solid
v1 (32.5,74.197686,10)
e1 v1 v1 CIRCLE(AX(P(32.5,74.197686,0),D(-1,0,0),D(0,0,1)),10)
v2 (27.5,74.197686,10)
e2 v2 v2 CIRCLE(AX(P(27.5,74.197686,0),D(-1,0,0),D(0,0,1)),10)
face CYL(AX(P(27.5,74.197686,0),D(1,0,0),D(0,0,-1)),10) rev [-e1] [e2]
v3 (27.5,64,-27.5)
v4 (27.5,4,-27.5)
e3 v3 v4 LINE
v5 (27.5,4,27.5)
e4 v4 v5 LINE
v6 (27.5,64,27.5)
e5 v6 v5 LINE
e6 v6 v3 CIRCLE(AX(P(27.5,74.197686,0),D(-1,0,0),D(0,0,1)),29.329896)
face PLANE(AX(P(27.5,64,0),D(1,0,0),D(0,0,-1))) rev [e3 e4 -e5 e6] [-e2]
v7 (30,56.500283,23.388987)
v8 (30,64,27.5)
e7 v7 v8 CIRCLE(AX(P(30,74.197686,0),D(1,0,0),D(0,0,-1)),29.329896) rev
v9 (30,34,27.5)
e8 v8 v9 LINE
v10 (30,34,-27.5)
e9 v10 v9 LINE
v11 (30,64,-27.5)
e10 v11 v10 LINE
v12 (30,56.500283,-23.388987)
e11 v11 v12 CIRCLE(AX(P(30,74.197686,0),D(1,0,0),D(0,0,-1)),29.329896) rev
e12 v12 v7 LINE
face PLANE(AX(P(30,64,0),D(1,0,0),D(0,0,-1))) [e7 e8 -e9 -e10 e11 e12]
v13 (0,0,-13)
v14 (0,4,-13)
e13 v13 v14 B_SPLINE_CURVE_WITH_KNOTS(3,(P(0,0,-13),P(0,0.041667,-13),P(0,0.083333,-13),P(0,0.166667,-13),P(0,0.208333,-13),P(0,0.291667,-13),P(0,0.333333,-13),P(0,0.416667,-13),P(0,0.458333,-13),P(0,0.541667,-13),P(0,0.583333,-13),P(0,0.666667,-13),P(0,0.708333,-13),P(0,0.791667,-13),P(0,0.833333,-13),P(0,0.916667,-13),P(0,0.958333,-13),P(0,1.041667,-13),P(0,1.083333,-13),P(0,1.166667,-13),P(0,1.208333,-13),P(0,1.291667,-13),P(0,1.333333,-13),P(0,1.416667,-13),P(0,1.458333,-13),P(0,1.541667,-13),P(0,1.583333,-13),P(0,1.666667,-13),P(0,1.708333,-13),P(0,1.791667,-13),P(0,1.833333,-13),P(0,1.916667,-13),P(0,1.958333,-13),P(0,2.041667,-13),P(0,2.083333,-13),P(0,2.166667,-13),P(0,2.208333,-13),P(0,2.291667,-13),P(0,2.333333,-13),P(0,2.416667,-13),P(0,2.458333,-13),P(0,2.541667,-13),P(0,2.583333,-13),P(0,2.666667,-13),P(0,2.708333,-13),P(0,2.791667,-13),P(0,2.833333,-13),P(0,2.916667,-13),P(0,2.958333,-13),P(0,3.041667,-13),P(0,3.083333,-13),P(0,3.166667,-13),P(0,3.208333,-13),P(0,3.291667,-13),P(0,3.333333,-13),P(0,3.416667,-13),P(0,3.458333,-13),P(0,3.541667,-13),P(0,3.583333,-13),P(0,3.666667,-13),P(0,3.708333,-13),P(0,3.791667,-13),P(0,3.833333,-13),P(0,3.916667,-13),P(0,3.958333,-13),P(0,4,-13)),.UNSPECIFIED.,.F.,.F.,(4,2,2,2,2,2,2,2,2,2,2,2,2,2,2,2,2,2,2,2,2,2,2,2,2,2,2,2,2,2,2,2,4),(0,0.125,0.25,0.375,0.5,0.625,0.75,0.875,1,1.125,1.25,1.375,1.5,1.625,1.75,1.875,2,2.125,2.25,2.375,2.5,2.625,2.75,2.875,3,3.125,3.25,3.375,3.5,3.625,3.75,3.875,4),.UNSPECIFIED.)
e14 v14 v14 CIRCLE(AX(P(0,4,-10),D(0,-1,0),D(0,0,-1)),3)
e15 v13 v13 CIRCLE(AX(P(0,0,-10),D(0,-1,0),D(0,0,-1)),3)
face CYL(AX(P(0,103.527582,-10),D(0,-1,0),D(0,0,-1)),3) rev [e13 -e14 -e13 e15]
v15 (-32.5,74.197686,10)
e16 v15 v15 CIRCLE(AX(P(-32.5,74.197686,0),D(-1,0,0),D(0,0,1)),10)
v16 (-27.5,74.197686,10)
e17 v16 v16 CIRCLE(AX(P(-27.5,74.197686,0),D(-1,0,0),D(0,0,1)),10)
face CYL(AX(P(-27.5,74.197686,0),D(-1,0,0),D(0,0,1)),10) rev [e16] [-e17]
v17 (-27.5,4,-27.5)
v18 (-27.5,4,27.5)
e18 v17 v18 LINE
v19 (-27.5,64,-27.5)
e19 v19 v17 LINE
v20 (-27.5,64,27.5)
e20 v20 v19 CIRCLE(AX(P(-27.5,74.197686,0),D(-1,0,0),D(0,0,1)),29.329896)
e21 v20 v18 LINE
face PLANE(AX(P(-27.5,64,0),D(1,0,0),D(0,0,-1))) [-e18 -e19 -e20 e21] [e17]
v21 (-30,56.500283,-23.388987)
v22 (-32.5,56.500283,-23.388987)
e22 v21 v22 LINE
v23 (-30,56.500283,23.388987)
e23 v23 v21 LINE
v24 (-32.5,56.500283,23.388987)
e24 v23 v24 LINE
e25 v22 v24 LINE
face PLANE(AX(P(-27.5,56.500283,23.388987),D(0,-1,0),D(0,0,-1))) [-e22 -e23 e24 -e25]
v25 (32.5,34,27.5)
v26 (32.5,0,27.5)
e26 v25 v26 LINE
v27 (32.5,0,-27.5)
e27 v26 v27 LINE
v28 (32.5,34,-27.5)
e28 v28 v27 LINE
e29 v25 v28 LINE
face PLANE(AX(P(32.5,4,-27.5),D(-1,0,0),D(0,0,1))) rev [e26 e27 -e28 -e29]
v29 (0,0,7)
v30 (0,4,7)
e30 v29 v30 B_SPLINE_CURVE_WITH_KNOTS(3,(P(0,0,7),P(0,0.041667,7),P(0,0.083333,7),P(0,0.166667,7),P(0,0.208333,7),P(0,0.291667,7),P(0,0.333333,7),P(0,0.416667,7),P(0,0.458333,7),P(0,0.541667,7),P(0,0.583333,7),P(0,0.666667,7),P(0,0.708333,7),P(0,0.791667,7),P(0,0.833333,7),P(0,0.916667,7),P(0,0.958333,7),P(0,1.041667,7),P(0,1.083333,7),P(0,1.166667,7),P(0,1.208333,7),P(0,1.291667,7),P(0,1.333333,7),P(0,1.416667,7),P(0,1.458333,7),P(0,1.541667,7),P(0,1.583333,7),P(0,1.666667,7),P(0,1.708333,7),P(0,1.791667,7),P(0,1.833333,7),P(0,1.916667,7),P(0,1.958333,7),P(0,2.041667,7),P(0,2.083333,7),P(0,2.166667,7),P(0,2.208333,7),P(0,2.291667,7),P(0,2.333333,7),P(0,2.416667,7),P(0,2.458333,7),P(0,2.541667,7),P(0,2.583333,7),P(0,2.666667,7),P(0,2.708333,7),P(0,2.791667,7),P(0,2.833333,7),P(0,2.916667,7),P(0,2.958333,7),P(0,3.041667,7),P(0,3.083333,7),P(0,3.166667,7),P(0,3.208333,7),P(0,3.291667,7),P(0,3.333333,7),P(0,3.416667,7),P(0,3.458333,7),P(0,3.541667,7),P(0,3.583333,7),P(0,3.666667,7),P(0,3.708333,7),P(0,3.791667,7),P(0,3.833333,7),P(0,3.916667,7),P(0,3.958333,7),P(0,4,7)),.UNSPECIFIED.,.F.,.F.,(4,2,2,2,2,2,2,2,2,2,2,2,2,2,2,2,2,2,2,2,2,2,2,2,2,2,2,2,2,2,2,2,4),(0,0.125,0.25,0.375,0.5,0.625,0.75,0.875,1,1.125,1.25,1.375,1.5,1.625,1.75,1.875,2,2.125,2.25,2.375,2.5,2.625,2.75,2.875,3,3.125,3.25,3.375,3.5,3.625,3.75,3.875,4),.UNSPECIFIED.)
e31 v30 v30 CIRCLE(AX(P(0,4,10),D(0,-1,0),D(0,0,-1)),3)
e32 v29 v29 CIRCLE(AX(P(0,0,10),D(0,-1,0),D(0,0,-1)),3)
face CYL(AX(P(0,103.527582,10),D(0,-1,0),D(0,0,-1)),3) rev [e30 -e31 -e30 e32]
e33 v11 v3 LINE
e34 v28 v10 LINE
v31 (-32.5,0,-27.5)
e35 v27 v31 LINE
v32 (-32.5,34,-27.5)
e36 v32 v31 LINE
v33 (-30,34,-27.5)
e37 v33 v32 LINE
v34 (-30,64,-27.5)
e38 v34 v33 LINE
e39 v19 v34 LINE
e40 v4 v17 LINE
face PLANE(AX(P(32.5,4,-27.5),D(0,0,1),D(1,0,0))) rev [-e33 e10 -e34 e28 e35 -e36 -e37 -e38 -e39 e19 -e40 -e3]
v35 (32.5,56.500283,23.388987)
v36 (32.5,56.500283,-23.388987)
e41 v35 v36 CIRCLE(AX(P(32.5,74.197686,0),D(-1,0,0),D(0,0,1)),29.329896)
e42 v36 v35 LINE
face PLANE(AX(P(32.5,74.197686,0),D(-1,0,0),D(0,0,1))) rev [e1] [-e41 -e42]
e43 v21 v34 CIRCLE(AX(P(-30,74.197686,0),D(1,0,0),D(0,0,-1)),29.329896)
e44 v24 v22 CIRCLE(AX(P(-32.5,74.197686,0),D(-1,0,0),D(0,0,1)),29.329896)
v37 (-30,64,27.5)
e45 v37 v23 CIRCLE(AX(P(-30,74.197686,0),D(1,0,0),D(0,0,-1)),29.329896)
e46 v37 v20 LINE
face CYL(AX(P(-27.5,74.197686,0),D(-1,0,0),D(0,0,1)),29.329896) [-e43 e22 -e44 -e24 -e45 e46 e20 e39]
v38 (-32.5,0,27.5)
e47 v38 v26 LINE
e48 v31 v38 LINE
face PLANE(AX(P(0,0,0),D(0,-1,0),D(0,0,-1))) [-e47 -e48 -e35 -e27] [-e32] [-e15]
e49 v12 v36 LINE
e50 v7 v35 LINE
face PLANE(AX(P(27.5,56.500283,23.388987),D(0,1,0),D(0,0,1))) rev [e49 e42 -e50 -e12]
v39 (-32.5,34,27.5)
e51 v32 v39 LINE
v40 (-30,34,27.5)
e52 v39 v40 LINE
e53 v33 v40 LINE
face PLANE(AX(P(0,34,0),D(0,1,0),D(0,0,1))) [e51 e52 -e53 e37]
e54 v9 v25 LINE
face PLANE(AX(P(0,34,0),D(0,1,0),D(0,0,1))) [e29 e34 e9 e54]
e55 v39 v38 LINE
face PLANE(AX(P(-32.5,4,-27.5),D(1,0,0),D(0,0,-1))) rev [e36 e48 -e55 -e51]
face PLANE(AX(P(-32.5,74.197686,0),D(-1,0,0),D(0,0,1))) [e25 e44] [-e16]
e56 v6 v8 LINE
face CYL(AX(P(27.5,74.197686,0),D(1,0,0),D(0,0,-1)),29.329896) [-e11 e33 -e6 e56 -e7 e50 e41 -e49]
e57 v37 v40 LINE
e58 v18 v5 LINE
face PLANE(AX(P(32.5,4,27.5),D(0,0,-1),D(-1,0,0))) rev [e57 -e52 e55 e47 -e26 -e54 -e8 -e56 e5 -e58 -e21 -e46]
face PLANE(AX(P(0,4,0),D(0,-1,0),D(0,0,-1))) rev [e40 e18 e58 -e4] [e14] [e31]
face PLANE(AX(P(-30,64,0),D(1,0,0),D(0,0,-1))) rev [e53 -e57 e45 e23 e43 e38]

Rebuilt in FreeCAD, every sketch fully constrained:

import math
import FreeCAD as App
import Part
import Sketcher
from FreeCAD import Vector

doc = App.newDocument("Part")
body = doc.addObject("PartDesign::Body", "Body")

sketch1 = doc.addObject("Sketcher::SketchObject", "Sketch")
body.addObject(sketch1)
sketch1.AttachmentSupport = (doc.XZ_Plane, [""])
sketch1.MapMode = "FlatFace"
sketch1.addGeometry([
    Part.LineSegment(Vector(-32, -28, 0), Vector(-32, 28, 0)),
    Part.LineSegment(Vector(-32, 28, 0), Vector(32, 28, 0)),
    Part.LineSegment(Vector(32, 28, 0), Vector(32, -28, 0)),
    Part.LineSegment(Vector(32, -28, 0), Vector(-32, -28, 0)),
], False)
sketch1.addConstraint([
    Sketcher.Constraint("Coincident", 0, 2, 1, 1),
    Sketcher.Constraint("Coincident", 1, 2, 2, 1),
    Sketcher.Constraint("Coincident", 2, 2, 3, 1),
    Sketcher.Constraint("Coincident", 3, 2, 0, 1),
    Sketcher.Constraint("Vertical", 0),
    Sketcher.Constraint("Horizontal", 1),
    Sketcher.Constraint("Vertical", 2),
    Sketcher.Constraint("Horizontal", 3),
    Sketcher.Constraint("Symmetric", 0, 2, 2, 2, -1, 1),
    Sketcher.Constraint("DistanceX", 1, 1, 1, 2, 65.0),
    Sketcher.Constraint("DistanceY", 0, 1, 0, 2, 55.0),
])
pad1 = doc.addObject("PartDesign::Pad", "Pad")
body.addObject(pad1)
pad1.Profile = sketch1
pad1.Length = 4
pad1.Reversed = True

sketch2 = doc.addObject("Sketcher::SketchObject", "Sketch001")
body.addObject(sketch2)
sketch2.AttachmentSupport = (doc.XZ_Plane, [""])
sketch2.MapMode = "FlatFace"
sketch2.AttachmentOffset = App.Placement(Vector(0, 0, -4), App.Rotation())
sketch2.addGeometry([
    Part.LineSegment(Vector(-30, -27.5, 0), Vector(-30, 27.5, 0)),
    Part.LineSegment(Vector(-30, 27.5, 0), Vector(-27.5, 27.5, 0)),
    Part.LineSegment(Vector(-27.5, 27.5, 0), Vector(-27.5, -27.5, 0)),
    Part.LineSegment(Vector(-27.5, -27.5, 0), Vector(-30, -27.5, 0)),
    Part.LineSegment(Vector(27.5, -27.5, 0), Vector(27.5, 27.5, 0)),
    Part.LineSegment(Vector(27.5, 27.5, 0), Vector(30, 27.5, 0)),
    Part.LineSegment(Vector(30, 27.5, 0), Vector(30, -27.5, 0)),
    Part.LineSegment(Vector(30, -27.5, 0), Vector(27.5, -27.5, 0)),
], False)
sketch2.addConstraint([
    Sketcher.Constraint("Coincident", 0, 2, 1, 1),
    Sketcher.Constraint("Coincident", 1, 2, 2, 1),
    Sketcher.Constraint("Coincident", 2, 2, 3, 1),
    Sketcher.Constraint("Coincident", 3, 2, 0, 1),
    Sketcher.Constraint("Coincident", 4, 2, 5, 1),
    Sketcher.Constraint("Coincident", 5, 2, 6, 1),
    Sketcher.Constraint("Coincident", 6, 2, 7, 1),
    Sketcher.Constraint("Coincident", 7, 2, 4, 1),
    Sketcher.Constraint("Vertical", 0),
    Sketcher.Constraint("Horizontal", 1),
    Sketcher.Constraint("Vertical", 2),
    Sketcher.Constraint("Horizontal", 3),
    Sketcher.Constraint("Vertical", 4),
    Sketcher.Constraint("Horizontal", 5),
    Sketcher.Constraint("Vertical", 6),
    Sketcher.Constraint("Horizontal", 7),
    Sketcher.Constraint("Symmetric", 2, 2, 4, 2, -1, 1),
    Sketcher.Constraint("Symmetric", 0, 2, 6, 2, -1, 1),
    Sketcher.Constraint("Horizontal", 1, 2, 4, 2),
    Sketcher.Constraint("DistanceY", 0, 1, 0, 2, 55.0),
    Sketcher.Constraint("DistanceX", 1, 1, 1, 2, 2.5),
    Sketcher.Constraint("DistanceX", 0, 2, -1, 1, 30.0),
])
pad2 = doc.addObject("PartDesign::Pad", "Pad001")
body.addObject(pad2)
pad2.Profile = sketch2
pad2.Length = 60
pad2.Reversed = True

sketch3 = doc.addObject("Sketcher::SketchObject", "Sketch002")
body.addObject(sketch3)
sketch3.AttachmentSupport = (doc.XZ_Plane, [""])
sketch3.MapMode = "FlatFace"
sketch3.AttachmentOffset = App.Placement(Vector(0, 0, -4), App.Rotation())
sketch3.addGeometry([
    Part.LineSegment(Vector(-32.5, -27.5, 0), Vector(-32.5, 27.5, 0)),
    Part.LineSegment(Vector(-32.5, 27.5, 0), Vector(-30, 27.5, 0)),
    Part.LineSegment(Vector(-30, 27.5, 0), Vector(-30, -27.5, 0)),
    Part.LineSegment(Vector(-30, -27.5, 0), Vector(-32.5, -27.5, 0)),
    Part.LineSegment(Vector(30, -27.5, 0), Vector(30, 27.5, 0)),
    Part.LineSegment(Vector(30, 27.5, 0), Vector(32.5, 27.5, 0)),
    Part.LineSegment(Vector(32.5, 27.5, 0), Vector(32.5, -27.5, 0)),
    Part.LineSegment(Vector(32.5, -27.5, 0), Vector(30, -27.5, 0)),
], False)
sketch3.addConstraint([
    Sketcher.Constraint("Coincident", 0, 2, 1, 1),
    Sketcher.Constraint("Coincident", 1, 2, 2, 1),
    Sketcher.Constraint("Coincident", 2, 2, 3, 1),
    Sketcher.Constraint("Coincident", 3, 2, 0, 1),
    Sketcher.Constraint("Coincident", 4, 2, 5, 1),
    Sketcher.Constraint("Coincident", 5, 2, 6, 1),
    Sketcher.Constraint("Coincident", 6, 2, 7, 1),
    Sketcher.Constraint("Coincident", 7, 2, 4, 1),
    Sketcher.Constraint("Vertical", 0),
    Sketcher.Constraint("Horizontal", 1),
    Sketcher.Constraint("Vertical", 2),
    Sketcher.Constraint("Horizontal", 3),
    Sketcher.Constraint("Vertical", 4),
    Sketcher.Constraint("Horizontal", 5),
    Sketcher.Constraint("Vertical", 6),
    Sketcher.Constraint("Horizontal", 7),
    Sketcher.Constraint("Symmetric", 2, 2, 4, 2, -1, 1),
    Sketcher.Constraint("Symmetric", 0, 2, 6, 2, -1, 1),
    Sketcher.Constraint("Horizontal", 1, 2, 4, 2),
    Sketcher.Constraint("DistanceY", 0, 1, 0, 2, 55.0),
    Sketcher.Constraint("DistanceX", 1, 1, 1, 2, 2.5),
    Sketcher.Constraint("DistanceX", 1, 2, -1, 1, 30.0),
])
pad3 = doc.addObject("PartDesign::Pad", "Pad002")
body.addObject(pad3)
pad3.Profile = sketch3
pad3.Length = 30
pad3.Reversed = True

sketch4 = doc.addObject("Sketcher::SketchObject", "Sketch003")
body.addObject(sketch4)
sketch4.AttachmentSupport = (doc.YZ_Plane, [""])
sketch4.MapMode = "FlatFace"
sketch4.AttachmentOffset = App.Placement(Vector(0, 0, -30), App.Rotation())
sketch4.addGeometry([
    Part.LineSegment(Vector(57, -23, 0), Vector(57, 23, 0)),
    Part.ArcOfCircle(Part.Circle(Vector(74, 0, 0), Vector(0, 0, 1), 29), math.radians(-127), math.radians(127)),
    Part.Circle(Vector(74, 0, 0), Vector(0, 0, 1), 10),
], False)
sketch4.addConstraint([
    Sketcher.Constraint("Coincident", 0, 1, 1, 1),
    Sketcher.Constraint("Coincident", 1, 2, 0, 2),
    Sketcher.Constraint("Vertical", 0),
    Sketcher.Constraint("Coincident", 2, 3, 1, 3),
    Sketcher.Constraint("PointOnObject", 1, 3, -1),
    Sketcher.Constraint("Diameter", 2, 20.0),
    Sketcher.Constraint("Radius", 1, 29.329896),
    Sketcher.Constraint("DistanceY", 0, 1, 0, 2, 46.777975),
    Sketcher.Constraint("DistanceX", -1, 1, 1, 3, 74.197686),
])
pad4 = doc.addObject("PartDesign::Pad", "Pad003")
body.addObject(pad4)
pad4.Profile = sketch4
pad4.Type = "TwoLengths"
pad4.Length = 2.5
pad4.Length2 = 2.5
pad4.Reversed = True

sketch5 = doc.addObject("Sketcher::SketchObject", "Sketch004")
body.addObject(sketch5)
sketch5.AttachmentSupport = (doc.YZ_Plane, [""])
sketch5.MapMode = "FlatFace"
sketch5.AttachmentOffset = App.Placement(Vector(0, 0, 32.5), App.Rotation())
sketch5.addGeometry([
    Part.LineSegment(Vector(57, -23, 0), Vector(57, 23, 0)),
    Part.ArcOfCircle(Part.Circle(Vector(74, 0, 0), Vector(0, 0, 1), 29), math.radians(-127), math.radians(127)),
    Part.Circle(Vector(74, 0, 0), Vector(0, 0, 1), 10),
], False)
sketch5.addConstraint([
    Sketcher.Constraint("Coincident", 0, 1, 1, 1),
    Sketcher.Constraint("Coincident", 1, 2, 0, 2),
    Sketcher.Constraint("Vertical", 0),
    Sketcher.Constraint("Coincident", 2, 3, 1, 3),
    Sketcher.Constraint("PointOnObject", 1, 3, -1),
    Sketcher.Constraint("Diameter", 2, 20.0),
    Sketcher.Constraint("Radius", 1, 29.329896),
    Sketcher.Constraint("DistanceY", 0, 1, 0, 2, 46.777975),
    Sketcher.Constraint("DistanceX", -1, 1, 1, 3, 74.197686),
])
pad5 = doc.addObject("PartDesign::Pad", "Pad004")
body.addObject(pad5)
pad5.Profile = sketch5
pad5.Length = 5
pad5.Reversed = True

sketch6 = doc.addObject("Sketcher::SketchObject", "Sketch005")
body.addObject(sketch6)
sketch6.AttachmentSupport = (doc.XZ_Plane, [""])
sketch6.MapMode = "FlatFace"
sketch6.addGeometry([
    Part.Circle(Vector(0, 10, 0), Vector(0, 0, 1), 3),
    Part.Circle(Vector(0, -10, 0), Vector(0, 0, 1), 3),
], False)
sketch6.addConstraint([
    Sketcher.Constraint("Equal", 0, 1),
    Sketcher.Constraint("Symmetric", 0, 3, 1, 3, -1, 1),
    Sketcher.Constraint("PointOnObject", 0, 3, -2),
    Sketcher.Constraint("Diameter", 0, 6.0),
    Sketcher.Constraint("DistanceY", -1, 1, 0, 3, 10.0),
])
pocket1 = doc.addObject("PartDesign::Pocket", "Pocket")
body.addObject(pocket1)
pocket1.Profile = sketch6
pocket1.Type = "ThroughAll"
pocket1.Midplane = True

doc.recompute()
